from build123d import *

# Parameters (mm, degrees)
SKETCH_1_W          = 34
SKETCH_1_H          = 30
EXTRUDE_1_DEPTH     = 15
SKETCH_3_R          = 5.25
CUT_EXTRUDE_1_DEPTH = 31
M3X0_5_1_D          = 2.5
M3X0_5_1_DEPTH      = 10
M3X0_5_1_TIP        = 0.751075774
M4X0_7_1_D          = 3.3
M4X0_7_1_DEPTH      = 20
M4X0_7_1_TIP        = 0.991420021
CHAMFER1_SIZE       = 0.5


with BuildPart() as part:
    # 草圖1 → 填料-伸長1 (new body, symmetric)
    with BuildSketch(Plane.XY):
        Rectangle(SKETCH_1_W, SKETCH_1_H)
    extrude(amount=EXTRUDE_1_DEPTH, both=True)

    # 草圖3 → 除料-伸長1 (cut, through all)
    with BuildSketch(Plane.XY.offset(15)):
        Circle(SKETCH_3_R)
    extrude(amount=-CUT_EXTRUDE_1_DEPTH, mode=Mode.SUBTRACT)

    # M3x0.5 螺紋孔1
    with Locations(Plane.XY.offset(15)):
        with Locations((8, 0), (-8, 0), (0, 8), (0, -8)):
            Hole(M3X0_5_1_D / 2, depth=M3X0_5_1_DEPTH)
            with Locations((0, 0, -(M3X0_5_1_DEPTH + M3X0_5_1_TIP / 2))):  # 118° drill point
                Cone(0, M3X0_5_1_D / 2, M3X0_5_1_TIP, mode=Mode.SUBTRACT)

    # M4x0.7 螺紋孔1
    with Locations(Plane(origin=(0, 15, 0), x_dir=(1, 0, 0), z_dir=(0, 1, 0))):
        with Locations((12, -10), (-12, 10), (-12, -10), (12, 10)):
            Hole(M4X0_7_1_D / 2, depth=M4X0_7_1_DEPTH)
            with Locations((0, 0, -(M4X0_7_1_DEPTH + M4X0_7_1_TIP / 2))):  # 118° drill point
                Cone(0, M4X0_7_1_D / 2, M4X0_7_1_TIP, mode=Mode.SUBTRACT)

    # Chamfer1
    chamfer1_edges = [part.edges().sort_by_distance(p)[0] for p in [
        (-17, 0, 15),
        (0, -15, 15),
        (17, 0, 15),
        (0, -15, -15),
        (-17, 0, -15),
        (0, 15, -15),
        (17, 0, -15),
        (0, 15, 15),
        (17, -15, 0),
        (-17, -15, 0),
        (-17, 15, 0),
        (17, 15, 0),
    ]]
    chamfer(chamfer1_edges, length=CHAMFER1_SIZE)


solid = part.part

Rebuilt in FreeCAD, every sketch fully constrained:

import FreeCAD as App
import Part
import Sketcher
Q = App.Units.Quantity


def edges_at(feature, points):
    """Names of the edges that pass closest to the given points."""
    edges = feature.Shape.Edges
    near = lambda p: min(range(len(edges)), key=lambda i: edges[i].distToShape(Part.Vertex(*p))[0])
    return sorted({f"Edge{near(p) + 1}" for p in points})


def add_polygon(sketch, points):
    """Adds a closed chain of lines whose ends are joined by coincident constraints."""
    first, n = sketch.GeometryCount, len(points)
    for a, b in zip(points, points[1:] + points[:1]):
        sketch.addGeometry(Part.LineSegment(App.Vector(*a, 0), App.Vector(*b, 0)), False)
    for i in range(n):
        sketch.addConstraint(Sketcher.Constraint("Coincident", first + i, 2, first + (i + 1) % n, 1))

doc = App.newDocument("Part")
body = doc.addObject("PartDesign::Body", "Body")

# Sketch on XY plane
sketch1 = body.newObject("Sketcher::SketchObject", "Sketch")
sketch1.AttachmentSupport = (doc.getObject("XY_Plane"), [""])
sketch1.MapMode = "FlatFace"
add_polygon(sketch1, [(-17, 15), (-17, -15), (17, -15), (17, 15)])  # lines 0-3
sketch1.addConstraint([
    Sketcher.Constraint("Vertical", 0),
    Sketcher.Constraint("Horizontal", 1),
    Sketcher.Constraint("Vertical", 2),
    Sketcher.Constraint("Horizontal", 3),
    Sketcher.Constraint("Symmetric", 0, 2, 2, 2, -1, 1),
    Sketcher.Constraint("DistanceX", 1, 1, 1, 2, Q("34 mm")),
    Sketcher.Constraint("DistanceY", 0, 2, 0, 1, Q("30 mm")),
])
pad1 = body.newObject("PartDesign::Pad", "Pad")
pad1.Profile = sketch1
pad1.Length = 30
pad1.Midplane = True

# Sketch on XY plane
sketch2 = body.newObject("Sketcher::SketchObject", "Sketch001")
sketch2.AttachmentSupport = (doc.getObject("XY_Plane"), [""])
sketch2.MapMode = "FlatFace"
sketch2.AttachmentOffset = App.Placement(App.Vector(0, 0, 15), App.Rotation())
sketch2.addGeometry(Part.Circle(App.Vector(0, 0, 0), App.Vector(0, 0, 1), 5), False)
sketch2.addConstraint([
    Sketcher.Constraint("Coincident", 0, 3, -1, 1),
    Sketcher.Constraint("Diameter", 0, Q("10.5 mm")),
])
pocket1 = body.newObject("PartDesign::Pocket", "Pocket")
pocket1.Profile = sketch2
pocket1.Type = "ThroughAll"

# Sketch on XY plane
sketch3 = body.newObject("Sketcher::SketchObject", "Sketch002")
sketch3.AttachmentSupport = (doc.getObject("XY_Plane"), [""])
sketch3.MapMode = "FlatFace"
sketch3.AttachmentOffset = App.Placement(App.Vector(0, 0, 15), App.Rotation())
sketch3.addGeometry([
    Part.Circle(App.Vector(8, 0, 0), App.Vector(0, 0, 1), 1.2),
    Part.Circle(App.Vector(-8, 0, 0), App.Vector(0, 0, 1), 1.2),
    Part.Circle(App.Vector(0, 8, 0), App.Vector(0, 0, 1), 1.2),
    Part.Circle(App.Vector(0, -8, 0), App.Vector(0, 0, 1), 1.2),
], False)
sketch3.addConstraint([
    Sketcher.Constraint("Equal", 0, 1),
    Sketcher.Constraint("Equal", 1, 2),
    Sketcher.Constraint("Equal", 2, 3),
    Sketcher.Constraint("Symmetric", 0, 3, 1, 3, -1, 1),
    Sketcher.Constraint("Symmetric", 2, 3, 3, 3, -1, 1),
    Sketcher.Constraint("PointOnObject", 0, 3, -1),
    Sketcher.Constraint("PointOnObject", 2, 3, -2),
    Sketcher.Constraint("Diameter", 0, Q("2.5 mm")),
    Sketcher.Constraint("DistanceX", -1, 1, 0, 3, Q("8 mm")),
    Sketcher.Constraint("DistanceY", -1, 1, 2, 3, Q("8 mm")),
])
doc.recompute()
hole = body.newObject("PartDesign::Hole", "Hole")
hole.Profile = sketch3
hole.ThreadType = "None"
hole.Diameter = 2.5
hole.DepthType = "Dimension"
hole.Depth = 10
hole.DrillPoint = "Angled"
hole.DrillPointAngle = 118

# Sketch on XZ plane
sketch4 = body.newObject("Sketcher::SketchObject", "Sketch003")
sketch4.AttachmentSupport = (doc.getObject("XZ_Plane"), [""])
sketch4.MapMode = "FlatFace"
sketch4.AttachmentOffset = App.Placement(App.Vector(0, 0, -15), App.Rotation())
sketch4.addGeometry([
    Part.Circle(App.Vector(12, 10, 0), App.Vector(0, 0, 1), 1.6),
    Part.Circle(App.Vector(-12, -10, 0), App.Vector(0, 0, 1), 1.6),
    Part.Circle(App.Vector(-12, 10, 0), App.Vector(0, 0, 1), 1.6),
    Part.Circle(App.Vector(12, -10, 0), App.Vector(0, 0, 1), 1.6),
], False)
sketch4.addConstraint([
    Sketcher.Constraint("Equal", 0, 1),
    Sketcher.Constraint("Equal", 1, 2),
    Sketcher.Constraint("Equal", 2, 3),
    Sketcher.Constraint("Symmetric", 0, 3, 1, 3, -1, 1),
    Sketcher.Constraint("Symmetric", 2, 3, 3, 3, -1, 1),
    Sketcher.Constraint("Symmetric", 0, 3, 2, 3, -2),
    Sketcher.Constraint("Diameter", 0, Q("3.3 mm")),
    Sketcher.Constraint("DistanceX", -1, 1, 0, 3, Q("12 mm")),
    Sketcher.Constraint("DistanceY", -1, 1, 0, 3, Q("10 mm")),
])
doc.recompute()
hole2 = body.newObject("PartDesign::Hole", "Hole001")
hole2.Profile = sketch4
hole2.ThreadType = "None"
hole2.Diameter = 3.3
hole2.DepthType = "Dimension"
hole2.Depth = 20
hole2.DrillPoint = "Angled"
hole2.DrillPointAngle = 118
hole2.Reversed = True
doc.recompute()

chamfer = body.newObject("PartDesign::Chamfer", "Chamfer")
chamfer.Base = (hole2, edges_at(hole2, [
    (-17, 0, 15),
    (0, -15, 15),
    (17, 0, 15),
    (0, -15, -15),
    (-17, 0, -15),
    (0, 15, -15),
    (17, 0, -15),
    (0, 15, 15),
    (17, -15, 0),
    (-17, -15, 0),
    (-17, 15, 0),
    (17, 15, 0),
]))
chamfer.Size = 0.5

doc.recompute()
